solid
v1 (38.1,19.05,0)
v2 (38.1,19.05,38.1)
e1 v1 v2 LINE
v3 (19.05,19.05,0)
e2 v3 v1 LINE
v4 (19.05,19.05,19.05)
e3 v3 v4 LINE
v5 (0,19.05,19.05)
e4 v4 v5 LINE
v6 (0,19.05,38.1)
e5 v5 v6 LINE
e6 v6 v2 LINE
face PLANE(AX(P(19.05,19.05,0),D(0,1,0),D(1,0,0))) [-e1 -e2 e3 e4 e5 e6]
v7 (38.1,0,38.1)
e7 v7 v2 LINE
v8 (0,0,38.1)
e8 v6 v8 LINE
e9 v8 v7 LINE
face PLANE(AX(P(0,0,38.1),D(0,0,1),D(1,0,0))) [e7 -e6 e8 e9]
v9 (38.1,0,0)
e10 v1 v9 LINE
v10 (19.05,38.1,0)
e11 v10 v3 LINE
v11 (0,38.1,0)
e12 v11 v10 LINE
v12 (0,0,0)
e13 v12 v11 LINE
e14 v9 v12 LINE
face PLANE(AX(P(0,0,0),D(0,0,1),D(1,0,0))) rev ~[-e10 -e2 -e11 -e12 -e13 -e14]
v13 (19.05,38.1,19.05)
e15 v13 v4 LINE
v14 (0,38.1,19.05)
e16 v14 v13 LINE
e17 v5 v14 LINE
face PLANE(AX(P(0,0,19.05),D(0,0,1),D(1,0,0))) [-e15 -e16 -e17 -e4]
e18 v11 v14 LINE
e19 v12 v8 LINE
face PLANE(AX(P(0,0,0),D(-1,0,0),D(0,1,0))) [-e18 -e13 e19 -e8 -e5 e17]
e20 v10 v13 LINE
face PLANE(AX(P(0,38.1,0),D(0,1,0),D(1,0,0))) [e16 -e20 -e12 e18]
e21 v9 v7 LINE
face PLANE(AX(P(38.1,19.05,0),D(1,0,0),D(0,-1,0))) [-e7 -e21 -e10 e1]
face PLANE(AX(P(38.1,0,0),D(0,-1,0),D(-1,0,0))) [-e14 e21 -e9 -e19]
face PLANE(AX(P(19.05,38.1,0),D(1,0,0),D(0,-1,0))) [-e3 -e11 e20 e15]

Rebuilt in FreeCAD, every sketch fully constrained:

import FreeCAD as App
import Part
import Sketcher

V = App.Vector
Q = App.Units.Quantity

doc = App.newDocument("Part")
body = doc.addObject("PartDesign::Body", "Body")

sketch1 = doc.addObject("Sketcher::SketchObject", "Sketch")
body.addObject(sketch1)
sketch1.AttachmentSupport = (doc.XY_Plane, [""])
sketch1.MapMode = "FlatFace"
sketch1.addGeometry(Part.LineSegment(V(0, 38, 0), V(0, 0, 0)), False)
sketch1.addGeometry(Part.LineSegment(V(0, 0, 0), V(38, 0, 0)), False)
sketch1.addGeometry(Part.LineSegment(V(38, 0, 0), V(38, 19, 0)), False)
sketch1.addGeometry(Part.LineSegment(V(38, 19, 0), V(19, 19, 0)), False)
sketch1.addGeometry(Part.LineSegment(V(19, 19, 0), V(19, 38, 0)), False)
sketch1.addGeometry(Part.LineSegment(V(19, 38, 0), V(0, 38, 0)), False)
sketch1.addConstraint(Sketcher.Constraint("Coincident", 0, 2, 1, 1))
sketch1.addConstraint(Sketcher.Constraint("Coincident", 1, 2, 2, 1))
sketch1.addConstraint(Sketcher.Constraint("Coincident", 2, 2, 3, 1))
sketch1.addConstraint(Sketcher.Constraint("Coincident", 3, 2, 4, 1))
sketch1.addConstraint(Sketcher.Constraint("Coincident", 4, 2, 5, 1))
sketch1.addConstraint(Sketcher.Constraint("Coincident", 5, 2, 0, 1))
sketch1.addConstraint(Sketcher.Constraint("Vertical", 0))
sketch1.addConstraint(Sketcher.Constraint("Horizontal", 1))
sketch1.addConstraint(Sketcher.Constraint("Vertical", 2))
sketch1.addConstraint(Sketcher.Constraint("Horizontal", 3))
sketch1.addConstraint(Sketcher.Constraint("Vertical", 4))
sketch1.addConstraint(Sketcher.Constraint("Horizontal", 5))
sketch1.addConstraint(Sketcher.Constraint("Coincident", 0, 2, -1, 1))
sketch1.addConstraint(Sketcher.Constraint("Equal", 3, 5))
sketch1.addConstraint(Sketcher.Constraint("Equal", 1, 0))
sketch1.addConstraint(Sketcher.Constraint("Equal", 5, 2))
sketch1.addConstraint(Sketcher.Constraint("DistanceX", 1, 1, 1, 2, Q("1.5 in")))
pad1 = doc.addObject("PartDesign::Pad", "Pad")
body.addObject(pad1)
pad1.Profile = sketch1
pad1.Length = Q("0.75 in")

sketch2 = doc.addObject("Sketcher::SketchObject", "Sketch001")
body.addObject(sketch2)
sketch2.AttachmentSupport = (doc.XY_Plane, [""])
sketch2.MapMode = "FlatFace"
sketch2.AttachmentOffset = App.Placement(V(0, 0, 0.75 * 25.4), App.Rotation())
sketch2.addGeometry(Part.LineSegment(V(38, 19, 0), V(0, 19, 0)), False)
sketch2.addGeometry(Part.LineSegment(V(0, 19, 0), V(0, 0, 0)), False)
sketch2.addGeometry(Part.LineSegment(V(0, 0, 0), V(38, 0, 0)), False)
sketch2.addGeometry(Part.LineSegment(V(38, 0, 0), V(38, 19, 0)), False)
sketch2.addConstraint(Sketcher.Constraint("Coincident", 0, 2, 1, 1))
sketch2.addConstraint(Sketcher.Constraint("Coincident", 1, 2, 2, 1))
sketch2.addConstraint(Sketcher.Constraint("Coincident", 2, 2, 3, 1))
sketch2.addConstraint(Sketcher.Constraint("Coincident", 3, 2, 0, 1))
sketch2.addConstraint(Sketcher.Constraint("Horizontal", 0))
sketch2.addConstraint(Sketcher.Constraint("Vertical", 1))
sketch2.addConstraint(Sketcher.Constraint("Horizontal", 2))
sketch2.addConstraint(Sketcher.Constraint("Vertical", 3))
sketch2.addConstraint(Sketcher.Constraint("Coincident", 1, 2, -1, 1))
sketch2.addConstraint(Sketcher.Constraint("DistanceX", 0, 2, 0, 1, Q("1.5 in")))
sketch2.addConstraint(Sketcher.Constraint("DistanceY", 1, 2, 1, 1, Q("0.75 in")))
pad2 = doc.addObject("PartDesign::Pad", "Pad001")
body.addObject(pad2)
pad2.Profile = sketch2
pad2.Length = Q("0.75 in")

doc.recompute()
